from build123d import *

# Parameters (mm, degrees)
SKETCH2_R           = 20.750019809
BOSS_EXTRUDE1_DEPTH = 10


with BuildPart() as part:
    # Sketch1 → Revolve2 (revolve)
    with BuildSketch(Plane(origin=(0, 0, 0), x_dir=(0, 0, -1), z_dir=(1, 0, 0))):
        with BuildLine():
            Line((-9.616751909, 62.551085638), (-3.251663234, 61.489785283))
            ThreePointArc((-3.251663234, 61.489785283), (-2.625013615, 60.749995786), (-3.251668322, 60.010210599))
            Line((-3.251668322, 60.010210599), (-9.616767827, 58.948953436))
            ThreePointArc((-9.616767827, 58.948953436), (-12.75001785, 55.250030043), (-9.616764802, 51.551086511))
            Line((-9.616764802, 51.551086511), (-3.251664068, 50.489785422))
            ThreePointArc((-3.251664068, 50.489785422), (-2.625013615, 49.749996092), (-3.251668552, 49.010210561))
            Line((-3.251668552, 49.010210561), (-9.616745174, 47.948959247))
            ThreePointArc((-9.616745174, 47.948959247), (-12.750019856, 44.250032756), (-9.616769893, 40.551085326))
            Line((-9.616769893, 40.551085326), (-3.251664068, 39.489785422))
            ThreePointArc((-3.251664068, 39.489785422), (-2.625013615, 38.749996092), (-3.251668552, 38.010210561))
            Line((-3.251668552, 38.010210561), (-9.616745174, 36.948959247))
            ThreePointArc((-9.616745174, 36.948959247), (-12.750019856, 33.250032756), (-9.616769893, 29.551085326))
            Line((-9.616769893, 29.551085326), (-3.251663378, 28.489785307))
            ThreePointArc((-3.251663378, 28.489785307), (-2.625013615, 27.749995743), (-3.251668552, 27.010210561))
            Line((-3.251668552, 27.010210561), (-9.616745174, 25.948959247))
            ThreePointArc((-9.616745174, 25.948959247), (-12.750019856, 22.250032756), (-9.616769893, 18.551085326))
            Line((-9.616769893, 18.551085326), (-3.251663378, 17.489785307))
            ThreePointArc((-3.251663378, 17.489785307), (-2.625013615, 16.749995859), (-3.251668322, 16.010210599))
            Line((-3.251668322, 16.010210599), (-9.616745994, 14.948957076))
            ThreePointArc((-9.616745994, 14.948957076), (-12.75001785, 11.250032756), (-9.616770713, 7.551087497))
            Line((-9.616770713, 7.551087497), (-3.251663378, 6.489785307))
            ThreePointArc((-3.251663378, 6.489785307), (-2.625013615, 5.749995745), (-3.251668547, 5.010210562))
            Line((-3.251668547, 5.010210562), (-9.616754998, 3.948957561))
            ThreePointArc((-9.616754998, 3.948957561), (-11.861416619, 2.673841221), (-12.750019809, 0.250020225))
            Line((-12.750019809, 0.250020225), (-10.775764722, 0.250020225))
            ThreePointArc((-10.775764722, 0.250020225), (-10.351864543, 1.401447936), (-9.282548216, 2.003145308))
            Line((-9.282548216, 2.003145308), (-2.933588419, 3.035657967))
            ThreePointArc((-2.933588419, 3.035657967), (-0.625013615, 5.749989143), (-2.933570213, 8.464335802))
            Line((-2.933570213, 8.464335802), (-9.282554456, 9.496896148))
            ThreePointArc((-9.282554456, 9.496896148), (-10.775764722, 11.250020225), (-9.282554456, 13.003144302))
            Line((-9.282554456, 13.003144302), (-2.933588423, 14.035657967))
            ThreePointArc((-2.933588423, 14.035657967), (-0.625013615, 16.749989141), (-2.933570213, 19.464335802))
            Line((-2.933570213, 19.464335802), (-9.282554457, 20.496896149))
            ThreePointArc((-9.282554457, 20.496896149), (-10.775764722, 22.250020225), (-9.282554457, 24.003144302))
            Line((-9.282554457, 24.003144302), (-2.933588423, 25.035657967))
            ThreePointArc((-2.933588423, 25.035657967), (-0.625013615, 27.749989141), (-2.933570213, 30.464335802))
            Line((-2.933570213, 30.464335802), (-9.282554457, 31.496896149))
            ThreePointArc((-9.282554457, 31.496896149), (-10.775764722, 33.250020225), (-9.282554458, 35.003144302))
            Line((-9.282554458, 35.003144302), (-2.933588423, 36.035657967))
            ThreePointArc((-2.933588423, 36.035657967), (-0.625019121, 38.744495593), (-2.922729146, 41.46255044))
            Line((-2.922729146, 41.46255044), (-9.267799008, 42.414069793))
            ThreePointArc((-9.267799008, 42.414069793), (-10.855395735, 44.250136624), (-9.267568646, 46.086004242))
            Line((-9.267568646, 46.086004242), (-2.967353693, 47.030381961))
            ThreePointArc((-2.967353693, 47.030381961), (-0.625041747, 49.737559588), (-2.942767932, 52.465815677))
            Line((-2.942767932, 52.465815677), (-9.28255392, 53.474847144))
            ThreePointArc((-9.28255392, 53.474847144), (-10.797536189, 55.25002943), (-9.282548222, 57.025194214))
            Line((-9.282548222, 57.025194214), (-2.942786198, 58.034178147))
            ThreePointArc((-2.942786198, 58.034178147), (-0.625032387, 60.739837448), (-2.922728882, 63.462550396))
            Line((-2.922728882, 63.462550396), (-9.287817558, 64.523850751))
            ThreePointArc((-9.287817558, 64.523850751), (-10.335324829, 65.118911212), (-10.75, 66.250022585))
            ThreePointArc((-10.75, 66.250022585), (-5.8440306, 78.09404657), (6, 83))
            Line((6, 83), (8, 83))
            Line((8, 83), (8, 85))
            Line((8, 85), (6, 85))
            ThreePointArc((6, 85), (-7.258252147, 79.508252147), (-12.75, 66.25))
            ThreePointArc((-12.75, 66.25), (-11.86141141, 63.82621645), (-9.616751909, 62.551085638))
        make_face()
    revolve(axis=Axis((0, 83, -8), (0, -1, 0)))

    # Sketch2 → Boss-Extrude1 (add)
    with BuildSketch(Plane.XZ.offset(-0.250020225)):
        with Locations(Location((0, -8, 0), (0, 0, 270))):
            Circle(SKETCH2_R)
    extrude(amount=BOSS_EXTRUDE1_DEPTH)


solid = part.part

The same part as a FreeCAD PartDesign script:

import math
import FreeCAD as App
import Part
import Sketcher

V = App.Vector
Q = App.Units.Quantity

doc = App.newDocument("Part")
params = doc.addObject("Spreadsheet::Sheet", "Params")
for row, (alias, value) in enumerate([
    ("sketch1_width", "2 mm"),
    ("sketch1_radius", "0.75 mm"),
    ("sketch1_radius2", "3.75 mm"),
    ("sketch1_radius3", "16.75 mm"),
    ("revolution_angle", "360 deg"),
    ("pad1_length", "10 mm"),
], start=1):
    params.set(f"A{row}", alias)
    params.set(f"B{row}", "=" + value)
    params.setAlias(f"B{row}", alias)

body = doc.addObject("PartDesign::Body", "Body")

sketch1 = body.newObject("Sketcher::SketchObject", "Sketch")
sketch1.AttachmentSupport = (doc.getObject("YZ_Plane"), [""])
sketch1.MapMode = "FlatFace"
sketch1.addGeometry([
    Part.LineSegment(V(62.551086, 9.616752, 0), V(61.489785, 3.251663, 0)),
    Part.ArcOfCircle(Part.Circle(V(60.749998, 3.375014, 0), V(0, 0, 1), 0.75), math.radians(-170.534111), math.radians(-9.466283)),
    Part.LineSegment(V(60.010211, 3.251668, 0), V(58.948953, 9.616768, 0)),
    Part.ArcOfCircle(Part.Circle(V(55.25002, 9.00002, 0), V(0, 0, 1), 3.749998), math.radians(9.466227), math.radians(170.53382)),
    Part.LineSegment(V(51.551087, 9.616765, 0), V(50.489785, 3.251664, 0)),
    Part.ArcOfCircle(Part.Circle(V(49.749998, 3.375014, 0), V(0, 0, 1), 0.75), math.radians(-170.534129), math.radians(-9.466218)),
    Part.LineSegment(V(49.010211, 3.251669, 0), V(47.948959, 9.616745, 0)),
    Part.ArcOfCircle(Part.Circle(V(44.25002, 9.00002, 0), V(0, 0, 1), 3.75), math.radians(9.465871), math.radians(170.533746)),
    Part.LineSegment(V(40.551085, 9.61677, 0), V(39.489785, 3.251664, 0)),
    Part.ArcOfCircle(Part.Circle(V(38.749998, 3.375014, 0), V(0, 0, 1), 0.75), math.radians(-170.534129), math.radians(-9.466218)),
    Part.LineSegment(V(38.010211, 3.251669, 0), V(36.948959, 9.616745, 0)),
    Part.ArcOfCircle(Part.Circle(V(33.25002, 9.00002, 0), V(0, 0, 1), 3.75), math.radians(9.465871), math.radians(170.533746)),
    Part.LineSegment(V(29.551085, 9.61677, 0), V(28.489785, 3.251663, 0)),
    Part.ArcOfCircle(Part.Circle(V(27.749998, 3.375014, 0), V(0, 0, 1), 0.75), math.radians(-170.534129), math.radians(-9.466272)),
    Part.LineSegment(V(27.010211, 3.251669, 0), V(25.948959, 9.616745, 0)),
    Part.ArcOfCircle(Part.Circle(V(22.25002, 9.00002, 0), V(0, 0, 1), 3.75), math.radians(9.465871), math.radians(170.533746)),
    Part.LineSegment(V(18.551085, 9.61677, 0), V(17.489785, 3.251663, 0)),
    Part.ArcOfCircle(Part.Circle(V(16.749998, 3.375014, 0), V(0, 0, 1), 0.75), math.radians(-170.534111), math.radians(-9.466272)),
    Part.LineSegment(V(16.010211, 3.251668, 0), V(14.948957, 9.616746, 0)),
    Part.ArcOfCircle(Part.Circle(V(11.25002, 9.00002, 0), V(0, 0, 1), 3.749998), math.radians(9.465889), math.radians(170.533728)),
    Part.LineSegment(V(7.551087, 9.616771, 0), V(6.489785, 3.251663, 0)),
    Part.ArcOfCircle(Part.Circle(V(5.749998, 3.375014, 0), V(0, 0, 1), 0.75), math.radians(-170.534129), math.radians(-9.466272)),
    Part.LineSegment(V(5.010211, 3.251669, 0), V(3.948958, 9.616755, 0)),
    Part.ArcOfCircle(Part.Circle(V(0.25002, 9.00002, 0), V(0, 0, 1), 3.75), math.radians(9.466023), math.radians(90)),
    Part.LineSegment(V(0.25002, 12.75002, 0), V(0.25002, 10.775765, 0)),
    Part.ArcOfCircle(Part.Circle(V(0.25002, 9.00002, 0), V(0, 0, 1), 1.775745), math.radians(9.154901), math.radians(90)),
    Part.LineSegment(V(2.003145, 9.282548, 0), V(3.035658, 2.933588, 0)),
    Part.ArcOfCircle(Part.Circle(V(5.749998, 3.375014, 0), V(0, 0, 1), 2.75), math.radians(-170.763021), math.radians(-9.237363)),
    Part.LineSegment(V(8.464336, 2.93357, 0), V(9.496896, 9.282554, 0)),
    Part.ArcOfCircle(Part.Circle(V(11.25002, 9.00002, 0), V(0, 0, 1), 1.775745), math.radians(9.155105), math.radians(170.844895)),
    Part.LineSegment(V(13.003144, 9.282554, 0), V(14.035658, 2.933588, 0)),
    Part.ArcOfCircle(Part.Circle(V(16.749998, 3.375014, 0), V(0, 0, 1), 2.75), math.radians(-170.763021), math.radians(-9.237363)),
    Part.LineSegment(V(19.464336, 2.93357, 0), V(20.496896, 9.282554, 0)),
    Part.ArcOfCircle(Part.Circle(V(22.25002, 9.00002, 0), V(0, 0, 1), 1.775745), math.radians(9.155105), math.radians(170.844895)),
    Part.LineSegment(V(24.003144, 9.282554, 0), V(25.035658, 2.933588, 0)),
    Part.ArcOfCircle(Part.Circle(V(27.749998, 3.375014, 0), V(0, 0, 1), 2.75), math.radians(-170.763021), math.radians(-9.237363)),
    Part.LineSegment(V(30.464336, 2.93357, 0), V(31.496896, 9.282554, 0)),
    Part.ArcOfCircle(Part.Circle(V(33.25002, 9.00002, 0), V(0, 0, 1), 1.775745), math.radians(9.155105), math.radians(170.844895)),
    Part.LineSegment(V(35.003144, 9.282554, 0), V(36.035658, 2.933588, 0)),
    Part.ArcOfCircle(Part.Circle(V(38.749998, 3.375014, 0), V(0, 0, 1), 2.75), math.radians(-170.763021), math.radians(-9.466277)),
    Part.LineSegment(V(41.46255, 2.922729, 0), V(42.41407, 9.267799, 0)),
    Part.ArcOfCircle(Part.Circle(V(44.25002, 9.00002, 0), V(0, 0, 1), 1.855376), math.radians(8.291068), math.radians(171.701743)),
    Part.LineSegment(V(46.086004, 9.267569, 0), V(47.030382, 2.967354, 0)),
    Part.ArcOfCircle(Part.Circle(V(49.749998, 3.375014, 0), V(0, 0, 1), 2.75), math.radians(-171.475056), math.radians(-9.043265)),
    Part.LineSegment(V(52.465816, 2.942768, 0), V(53.474847, 9.282554, 0)),
    Part.ArcOfCircle(Part.Circle(V(55.25002, 9.00002, 0), V(0, 0, 1), 1.797516), math.radians(9.043082), math.radians(170.956735)),
    Part.LineSegment(V(57.025194, 9.282548, 0), V(58.034178, 2.942786, 0)),
    Part.ArcOfCircle(Part.Circle(V(60.749998, 3.375014, 0), V(0, 0, 1), 2.75), math.radians(-170.95712), math.radians(-9.466283)),
    Part.LineSegment(V(63.46255, 2.922729, 0), V(64.523851, 9.287818, 0)),
    Part.ArcOfCircle(Part.Circle(V(66.25002, 9, 0), V(0, 0, 1), 1.75), math.radians(89.999923), math.radians(170.533717)),
    Part.ArcOfCircle(Part.Circle(V(66.25, -6, 0), V(0, 0, 1), 16.75), math.radians(0), math.radians(89.999923)),
    Part.LineSegment(V(83, -6, 0), V(83, -8, 0)),
    Part.LineSegment(V(83, -8, 0), V(85, -8, 0)),
    Part.LineSegment(V(85, -8, 0), V(85, -6, 0)),
    Part.ArcOfCircle(Part.Circle(V(66.25, -6, 0), V(0, 0, 1), 18.75), math.radians(0), math.radians(90)),
    Part.ArcOfCircle(Part.Circle(V(66.25002, 9, 0), V(0, 0, 1), 3.75), math.radians(90.000309), math.radians(170.533717)),
], False)
sketch1.addGeometry(Part.LineSegment(V(85, -8, 0), V(0.25002, -8, 0)), True)
sketch1.addConstraint([
    Sketcher.Constraint("Tangent", 0, 2, 1, 2),
    Sketcher.Constraint("Tangent", 1, 1, 2, 1),
    Sketcher.Constraint("Coincident", 2, 2, 3, 1),
    Sketcher.Constraint("Tangent", 3, 2, 4, 1),
    Sketcher.Constraint("Tangent", 4, 2, 5, 2),
    Sketcher.Constraint("Tangent", 5, 1, 6, 1),
    Sketcher.Constraint("Tangent", 6, 2, 7, 1),
    Sketcher.Constraint("Tangent", 7, 2, 8, 1),
    Sketcher.Constraint("Tangent", 8, 2, 9, 2),
    Sketcher.Constraint("Tangent", 9, 1, 10, 1),
    Sketcher.Constraint("Tangent", 10, 2, 11, 1),
    Sketcher.Constraint("Tangent", 11, 2, 12, 1),
    Sketcher.Constraint("Tangent", 12, 2, 13, 2),
    Sketcher.Constraint("Tangent", 13, 1, 14, 1),
    Sketcher.Constraint("Tangent", 14, 2, 15, 1),
    Sketcher.Constraint("Tangent", 15, 2, 16, 1),
    Sketcher.Constraint("Tangent", 16, 2, 17, 2),
    Sketcher.Constraint("Tangent", 17, 1, 18, 1),
    Sketcher.Constraint("Tangent", 18, 2, 19, 1),
    Sketcher.Constraint("Tangent", 19, 2, 20, 1),
    Sketcher.Constraint("Tangent", 20, 2, 21, 2),
    Sketcher.Constraint("Tangent", 21, 1, 22, 1),
    Sketcher.Constraint("Coincident", 22, 2, 23, 1),
    Sketcher.Constraint("Coincident", 23, 2, 24, 1),
    Sketcher.Constraint("Coincident", 24, 2, 25, 2),
    Sketcher.Constraint("Coincident", 25, 1, 26, 1),
    Sketcher.Constraint("Tangent", 26, 2, 27, 1),
    Sketcher.Constraint("Tangent", 27, 2, 28, 1),
    Sketcher.Constraint("Coincident", 28, 2, 29, 2),
    Sketcher.Constraint("Coincident", 29, 1, 30, 1),
    Sketcher.Constraint("Tangent", 30, 2, 31, 1),
    Sketcher.Constraint("Tangent", 31, 2, 32, 1),
    Sketcher.Constraint("Coincident", 32, 2, 33, 2),
    Sketcher.Constraint("Coincident", 33, 1, 34, 1),
    Sketcher.Constraint("Tangent", 34, 2, 35, 1),
    Sketcher.Constraint("Tangent", 35, 2, 36, 1),
    Sketcher.Constraint("Coincident", 36, 2, 37, 2),
    Sketcher.Constraint("Coincident", 37, 1, 38, 1),
    Sketcher.Constraint("Tangent", 38, 2, 39, 1),
    Sketcher.Constraint("Coincident", 39, 2, 40, 1),
    Sketcher.Constraint("Coincident", 40, 2, 41, 2),
    Sketcher.Constraint("Coincident", 41, 1, 42, 1),
    Sketcher.Constraint("Tangent", 42, 2, 43, 1),
    Sketcher.Constraint("Tangent", 43, 2, 44, 1),
    Sketcher.Constraint("Tangent", 44, 2, 45, 2),
    Sketcher.Constraint("Coincident", 45, 1, 46, 1),
    Sketcher.Constraint("Tangent", 46, 2, 47, 1),
    Sketcher.Constraint("Tangent", 47, 2, 48, 1),
    Sketcher.Constraint("Tangent", 48, 2, 49, 2),
    Sketcher.Constraint("Tangent", 49, 1, 50, 2),
    Sketcher.Constraint("Tangent", 50, 1, 51, 1),
    Sketcher.Constraint("Coincident", 51, 2, 52, 1),
    Sketcher.Constraint("Coincident", 52, 2, 53, 1),
    Sketcher.Constraint("Tangent", 53, 2, 54, 1),
    Sketcher.Constraint("Coincident", 54, 2, 55, 1),
    Sketcher.Constraint("Tangent", 55, 2, 0, 1),
    Sketcher.Constraint("Vertical", 24),
    Sketcher.Constraint("Vertical", 51),
    Sketcher.Constraint("Horizontal", 52),
    Sketcher.Constraint("Vertical", 53),
    Sketcher.Constraint("Horizontal", 56),
    Sketcher.Constraint("Coincident", 25, 3, 23, 3),
    Sketcher.Constraint("Coincident", 27, 3, 21, 3),
    Sketcher.Constraint("Coincident", 29, 3, 19, 3),
    Sketcher.Constraint("Coincident", 31, 3, 17, 3),
    Sketcher.Constraint("Coincident", 33, 3, 15, 3),
    Sketcher.Constraint("Coincident", 35, 3, 13, 3),
    Sketcher.Constraint("Coincident", 37, 3, 11, 3),
    Sketcher.Constraint("Coincident", 39, 3, 9, 3),
    Sketcher.Constraint("Coincident", 41, 3, 7, 3),
    Sketcher.Constraint("Coincident", 43, 3, 5, 3),
    Sketcher.Constraint("Coincident", 45, 3, 3, 3),
    Sketcher.Constraint("Coincident", 47, 3, 1, 3),
    Sketcher.Constraint("Coincident", 54, 3, 50, 3),
    Sketcher.Constraint("Coincident", 55, 3, 49, 3),
    Sketcher.Constraint("Coincident", 56, 1, 52, 2),
    Sketcher.Constraint("Equal", 1, 5),
    Sketcher.Constraint("Equal", 5, 9),
    Sketcher.Constraint("Equal", 7, 11),
    Sketcher.Constraint("Equal", 9, 13),
    Sketcher.Constraint("Equal", 11, 15),
    Sketcher.Constraint("Equal", 13, 17),
    Sketcher.Constraint("Equal", 3, 19),
    Sketcher.Constraint("Equal", 17, 21),
    Sketcher.Constraint("Equal", 19, 23),
    Sketcher.Constraint("Equal", 25, 29),
    Sketcher.Constraint("Equal", 27, 31),
    Sketcher.Constraint("Equal", 29, 33),
    Sketcher.Constraint("Equal", 31, 35),
    Sketcher.Constraint("Equal", 33, 37),
    Sketcher.Constraint("Equal", 35, 39),
    Sketcher.Constraint("Equal", 39, 43),
    Sketcher.Constraint("Equal", 43, 47),
    Sketcher.Constraint("Equal", 23, 55),
    Sketcher.Constraint("Parallel", 0, 4),
    Sketcher.Constraint("Parallel", 2, 6),
    Sketcher.Constraint("Parallel", 4, 8),
    Sketcher.Constraint("Parallel", 6, 10),
    Sketcher.Constraint("Parallel", 8, 12),
    Sketcher.Constraint("Parallel", 10, 14),
    Sketcher.Constraint("Parallel", 12, 16),
    Sketcher.Constraint("Parallel", 14, 18),
    Sketcher.Constraint("Parallel", 16, 20),
    Sketcher.Constraint("Parallel", 18, 22),
    Sketcher.Constraint("Parallel", 26, 30),
    Sketcher.Constraint("Parallel", 28, 32),
    Sketcher.Constraint("Parallel", 30, 34),
    Sketcher.Constraint("Parallel", 34, 38),
    Sketcher.Constraint("Parallel", 20, 48),
    Sketcher.Constraint("Horizontal", 1, 3, 5, 3),
    Sketcher.Constraint("Horizontal", 3, 3, 7, 3),
    Sketcher.Constraint("Horizontal", 5, 3, 9, 3),
    Sketcher.Constraint("Horizontal", 7, 3, 11, 3),
    Sketcher.Constraint("Horizontal", 9, 3, 13, 3),
    Sketcher.Constraint("Horizontal", 11, 3, 15, 3),
    Sketcher.Constraint("Horizontal", 13, 3, 17, 3),
    Sketcher.Constraint("Horizontal", 15, 3, 19, 3),
    Sketcher.Constraint("Horizontal", 17, 3, 21, 3),
    Sketcher.Constraint("Horizontal", 19, 3, 23, 3),
    Sketcher.Constraint("Horizontal", 28, 2, 29, 1),
    Sketcher.Constraint("Horizontal", 29, 1, 32, 2),
    Sketcher.Constraint("Horizontal", 33, 1, 36, 2),
    Sketcher.Constraint("Horizontal", 37, 1, 44, 2),
    Sketcher.Constraint("Horizontal", 25, 1, 45, 1),
    Sketcher.Constraint("Horizontal", 39, 2, 47, 2),
    Sketcher.Constraint("Vertical", 25, 3, 23, 2),
    Sketcher.Constraint("Vertical", 50, 3, 54, 2),
    Sketcher.Constraint("Vertical", 24, 2, 56, 2),
    Sketcher.Constraint("Equal", 52, 51),
    Sketcher.Constraint("DistanceX", 52, 1, 52, 2, Q("2 mm")),
    Sketcher.Constraint("Radius", 1, Q("0.75 mm")),
    Sketcher.Constraint("Radius", 7, Q("3.75 mm")),
    Sketcher.Constraint("Radius", 50, Q("16.75 mm")),
    Sketcher.Constraint("DistanceY", -1, 1, 49, 3, Q("9 mm")),
    Sketcher.Constraint("DistanceX", -1, 1, 50, 1, Q("83 mm")),
    Sketcher.Constraint("DistanceX", -1, 1, 1, 3, Q("60.749998 mm")),
    Sketcher.Constraint("DistanceX", -1, 1, 5, 3, Q("49.749998 mm")),
    Sketcher.Constraint("Radius", 25, Q("1.775745 mm")),
    Sketcher.Constraint("Radius", 41, Q("1.855376 mm")),
    Sketcher.Constraint("Radius", 45, Q("1.797516 mm")),
    Sketcher.Constraint("Distance", 28, Q("6.432401 mm")),
    Sketcher.Constraint("Distance", 42, Q("6.370601 mm")),
    Sketcher.Constraint("DistanceX", 56, 2, 56, 1, Q("84.74998 mm")),
    Sketcher.Constraint("DistanceY", -1, 1, 40, 2, Q("9.267799 mm")),
    Sketcher.Constraint("Distance", 0, Q("6.452962 mm")),
    Sketcher.Constraint("Distance", 22, Q("6.452952 mm")),
    Sketcher.Constraint("Distance", 2, Q("6.452965 mm")),
])
sketch1.setExpression("Constraints[129]", "Params.sketch1_width")
sketch1.setExpression("Constraints[130]", "Params.sketch1_radius")
sketch1.setExpression("Constraints[131]", "Params.sketch1_radius2")
sketch1.setExpression("Constraints[132]", "Params.sketch1_radius3")
revolution = body.newObject("PartDesign::Revolution", "Revolution")
revolution.Profile = sketch1
revolution.ReferenceAxis = (sketch1, ["Axis0"])
revolution.setExpression("Angle", "Params.revolution_angle")

sketch2 = body.newObject("Sketcher::SketchObject", "Sketch001")
sketch2.AttachmentSupport = (doc.getObject("XZ_Plane"), [""])
sketch2.MapMode = "FlatFace"
sketch2.AttachmentOffset = App.Placement(V(0, 0, -0.25002), App.Rotation())
sketch2.addGeometry(Part.Circle(V(0, -8, 0), V(0, 0, 1), 21), False)
sketch2.addConstraint([
    Sketcher.Constraint("PointOnObject", 0, 3, -2),
    Sketcher.Constraint("DistanceY", 0, 3, -1, 1, Q("8 mm")),
    Sketcher.Constraint("Diameter", 0, Q("41.50004 mm")),
])
pad1 = body.newObject("PartDesign::Pad", "Pad")
pad1.Profile = sketch2
pad1.setExpression("Length", "Params.pad1_length")

doc.recompute()
